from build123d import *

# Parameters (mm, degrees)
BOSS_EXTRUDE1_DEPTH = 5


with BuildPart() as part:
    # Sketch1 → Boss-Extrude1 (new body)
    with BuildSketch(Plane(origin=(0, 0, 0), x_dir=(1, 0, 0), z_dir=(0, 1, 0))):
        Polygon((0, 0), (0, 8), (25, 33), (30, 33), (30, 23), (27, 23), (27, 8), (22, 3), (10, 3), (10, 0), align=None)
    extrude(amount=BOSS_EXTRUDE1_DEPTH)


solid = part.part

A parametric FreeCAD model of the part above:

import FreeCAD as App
import Part
import Sketcher
from FreeCAD import Vector

doc = App.newDocument("Part")
body = doc.addObject("PartDesign::Body", "Body")

# Sketch on XZ plane
sketch1 = body.newObject("Sketcher::SketchObject", "Sketch")
sketch1.AttachmentSupport = (doc.getObject("XZ_Plane"), [""])
sketch1.MapMode = "FlatFace"
sketch1.addGeometry(Part.LineSegment(Vector(0, -8, 0), Vector(0, 0, 0)), False)
sketch1.addGeometry(Part.LineSegment(Vector(0, 0, 0), Vector(10, 0, 0)), False)
sketch1.addGeometry(Part.LineSegment(Vector(10, 0, 0), Vector(10, -3, 0)), False)
sketch1.addGeometry(Part.LineSegment(Vector(10, -3, 0), Vector(22, -3, 0)), False)
sketch1.addGeometry(Part.LineSegment(Vector(22, -3, 0), Vector(27, -8, 0)), False)
sketch1.addGeometry(Part.LineSegment(Vector(27, -8, 0), Vector(27, -23, 0)), False)
sketch1.addGeometry(Part.LineSegment(Vector(27, -23, 0), Vector(30, -23, 0)), False)
sketch1.addGeometry(Part.LineSegment(Vector(30, -23, 0), Vector(30, -33, 0)), False)
sketch1.addGeometry(Part.LineSegment(Vector(30, -33, 0), Vector(25, -33, 0)), False)
sketch1.addGeometry(Part.LineSegment(Vector(25, -33, 0), Vector(0, -8, 0)), False)
sketch1.addConstraint(Sketcher.Constraint("Coincident", 0, 2, 1, 1))
sketch1.addConstraint(Sketcher.Constraint("Coincident", 1, 2, 2, 1))
sketch1.addConstraint(Sketcher.Constraint("Coincident", 2, 2, 3, 1))
sketch1.addConstraint(Sketcher.Constraint("Coincident", 3, 2, 4, 1))
sketch1.addConstraint(Sketcher.Constraint("Coincident", 4, 2, 5, 1))
sketch1.addConstraint(Sketcher.Constraint("Coincident", 5, 2, 6, 1))
sketch1.addConstraint(Sketcher.Constraint("Coincident", 6, 2, 7, 1))
sketch1.addConstraint(Sketcher.Constraint("Coincident", 7, 2, 8, 1))
sketch1.addConstraint(Sketcher.Constraint("Coincident", 8, 2, 9, 1))
sketch1.addConstraint(Sketcher.Constraint("Coincident", 9, 2, 0, 1))
sketch1.addConstraint(Sketcher.Constraint("Vertical", 0))
sketch1.addConstraint(Sketcher.Constraint("Horizontal", 1))
sketch1.addConstraint(Sketcher.Constraint("Vertical", 2))
sketch1.addConstraint(Sketcher.Constraint("Horizontal", 3))
sketch1.addConstraint(Sketcher.Constraint("Vertical", 5))
sketch1.addConstraint(Sketcher.Constraint("Horizontal", 6))
sketch1.addConstraint(Sketcher.Constraint("Vertical", 7))
sketch1.addConstraint(Sketcher.Constraint("Horizontal", 8))
sketch1.addConstraint(Sketcher.Constraint("Coincident", 0, 2, -1, 1))
sketch1.addConstraint(Sketcher.Constraint("Parallel", 4, 9))
sketch1.addConstraint(Sketcher.Constraint("Horizontal", 4, 2, 9, 2))
sketch1.addConstraint(Sketcher.Constraint("Equal", 6, 2))
sketch1.addConstraint(Sketcher.Constraint("Equal", 1, 7))
sketch1.addConstraint(Sketcher.Constraint("DistanceX", 1, 1, 1, 2, 10.0))
sketch1.addConstraint(Sketcher.Constraint("DistanceX", 3, 1, 3, 2, 12.0))
sketch1.addConstraint(Sketcher.Constraint("DistanceX", 6, 1, 6, 2, 3.0))
sketch1.addConstraint(Sketcher.Constraint("DistanceX", 8, 2, 8, 1, 5.0))
sketch1.addConstraint(Sketcher.Constraint("DistanceY", 0, 1, 0, 2, 8.0))
sketch1.addConstraint(Sketcher.Constraint("DistanceY", 5, 2, 5, 1, 15.0))
pad1 = body.newObject("PartDesign::Pad", "Pad")
pad1.Profile = sketch1
pad1.Length = 5
pad1.Reversed = True

doc.recompute()
